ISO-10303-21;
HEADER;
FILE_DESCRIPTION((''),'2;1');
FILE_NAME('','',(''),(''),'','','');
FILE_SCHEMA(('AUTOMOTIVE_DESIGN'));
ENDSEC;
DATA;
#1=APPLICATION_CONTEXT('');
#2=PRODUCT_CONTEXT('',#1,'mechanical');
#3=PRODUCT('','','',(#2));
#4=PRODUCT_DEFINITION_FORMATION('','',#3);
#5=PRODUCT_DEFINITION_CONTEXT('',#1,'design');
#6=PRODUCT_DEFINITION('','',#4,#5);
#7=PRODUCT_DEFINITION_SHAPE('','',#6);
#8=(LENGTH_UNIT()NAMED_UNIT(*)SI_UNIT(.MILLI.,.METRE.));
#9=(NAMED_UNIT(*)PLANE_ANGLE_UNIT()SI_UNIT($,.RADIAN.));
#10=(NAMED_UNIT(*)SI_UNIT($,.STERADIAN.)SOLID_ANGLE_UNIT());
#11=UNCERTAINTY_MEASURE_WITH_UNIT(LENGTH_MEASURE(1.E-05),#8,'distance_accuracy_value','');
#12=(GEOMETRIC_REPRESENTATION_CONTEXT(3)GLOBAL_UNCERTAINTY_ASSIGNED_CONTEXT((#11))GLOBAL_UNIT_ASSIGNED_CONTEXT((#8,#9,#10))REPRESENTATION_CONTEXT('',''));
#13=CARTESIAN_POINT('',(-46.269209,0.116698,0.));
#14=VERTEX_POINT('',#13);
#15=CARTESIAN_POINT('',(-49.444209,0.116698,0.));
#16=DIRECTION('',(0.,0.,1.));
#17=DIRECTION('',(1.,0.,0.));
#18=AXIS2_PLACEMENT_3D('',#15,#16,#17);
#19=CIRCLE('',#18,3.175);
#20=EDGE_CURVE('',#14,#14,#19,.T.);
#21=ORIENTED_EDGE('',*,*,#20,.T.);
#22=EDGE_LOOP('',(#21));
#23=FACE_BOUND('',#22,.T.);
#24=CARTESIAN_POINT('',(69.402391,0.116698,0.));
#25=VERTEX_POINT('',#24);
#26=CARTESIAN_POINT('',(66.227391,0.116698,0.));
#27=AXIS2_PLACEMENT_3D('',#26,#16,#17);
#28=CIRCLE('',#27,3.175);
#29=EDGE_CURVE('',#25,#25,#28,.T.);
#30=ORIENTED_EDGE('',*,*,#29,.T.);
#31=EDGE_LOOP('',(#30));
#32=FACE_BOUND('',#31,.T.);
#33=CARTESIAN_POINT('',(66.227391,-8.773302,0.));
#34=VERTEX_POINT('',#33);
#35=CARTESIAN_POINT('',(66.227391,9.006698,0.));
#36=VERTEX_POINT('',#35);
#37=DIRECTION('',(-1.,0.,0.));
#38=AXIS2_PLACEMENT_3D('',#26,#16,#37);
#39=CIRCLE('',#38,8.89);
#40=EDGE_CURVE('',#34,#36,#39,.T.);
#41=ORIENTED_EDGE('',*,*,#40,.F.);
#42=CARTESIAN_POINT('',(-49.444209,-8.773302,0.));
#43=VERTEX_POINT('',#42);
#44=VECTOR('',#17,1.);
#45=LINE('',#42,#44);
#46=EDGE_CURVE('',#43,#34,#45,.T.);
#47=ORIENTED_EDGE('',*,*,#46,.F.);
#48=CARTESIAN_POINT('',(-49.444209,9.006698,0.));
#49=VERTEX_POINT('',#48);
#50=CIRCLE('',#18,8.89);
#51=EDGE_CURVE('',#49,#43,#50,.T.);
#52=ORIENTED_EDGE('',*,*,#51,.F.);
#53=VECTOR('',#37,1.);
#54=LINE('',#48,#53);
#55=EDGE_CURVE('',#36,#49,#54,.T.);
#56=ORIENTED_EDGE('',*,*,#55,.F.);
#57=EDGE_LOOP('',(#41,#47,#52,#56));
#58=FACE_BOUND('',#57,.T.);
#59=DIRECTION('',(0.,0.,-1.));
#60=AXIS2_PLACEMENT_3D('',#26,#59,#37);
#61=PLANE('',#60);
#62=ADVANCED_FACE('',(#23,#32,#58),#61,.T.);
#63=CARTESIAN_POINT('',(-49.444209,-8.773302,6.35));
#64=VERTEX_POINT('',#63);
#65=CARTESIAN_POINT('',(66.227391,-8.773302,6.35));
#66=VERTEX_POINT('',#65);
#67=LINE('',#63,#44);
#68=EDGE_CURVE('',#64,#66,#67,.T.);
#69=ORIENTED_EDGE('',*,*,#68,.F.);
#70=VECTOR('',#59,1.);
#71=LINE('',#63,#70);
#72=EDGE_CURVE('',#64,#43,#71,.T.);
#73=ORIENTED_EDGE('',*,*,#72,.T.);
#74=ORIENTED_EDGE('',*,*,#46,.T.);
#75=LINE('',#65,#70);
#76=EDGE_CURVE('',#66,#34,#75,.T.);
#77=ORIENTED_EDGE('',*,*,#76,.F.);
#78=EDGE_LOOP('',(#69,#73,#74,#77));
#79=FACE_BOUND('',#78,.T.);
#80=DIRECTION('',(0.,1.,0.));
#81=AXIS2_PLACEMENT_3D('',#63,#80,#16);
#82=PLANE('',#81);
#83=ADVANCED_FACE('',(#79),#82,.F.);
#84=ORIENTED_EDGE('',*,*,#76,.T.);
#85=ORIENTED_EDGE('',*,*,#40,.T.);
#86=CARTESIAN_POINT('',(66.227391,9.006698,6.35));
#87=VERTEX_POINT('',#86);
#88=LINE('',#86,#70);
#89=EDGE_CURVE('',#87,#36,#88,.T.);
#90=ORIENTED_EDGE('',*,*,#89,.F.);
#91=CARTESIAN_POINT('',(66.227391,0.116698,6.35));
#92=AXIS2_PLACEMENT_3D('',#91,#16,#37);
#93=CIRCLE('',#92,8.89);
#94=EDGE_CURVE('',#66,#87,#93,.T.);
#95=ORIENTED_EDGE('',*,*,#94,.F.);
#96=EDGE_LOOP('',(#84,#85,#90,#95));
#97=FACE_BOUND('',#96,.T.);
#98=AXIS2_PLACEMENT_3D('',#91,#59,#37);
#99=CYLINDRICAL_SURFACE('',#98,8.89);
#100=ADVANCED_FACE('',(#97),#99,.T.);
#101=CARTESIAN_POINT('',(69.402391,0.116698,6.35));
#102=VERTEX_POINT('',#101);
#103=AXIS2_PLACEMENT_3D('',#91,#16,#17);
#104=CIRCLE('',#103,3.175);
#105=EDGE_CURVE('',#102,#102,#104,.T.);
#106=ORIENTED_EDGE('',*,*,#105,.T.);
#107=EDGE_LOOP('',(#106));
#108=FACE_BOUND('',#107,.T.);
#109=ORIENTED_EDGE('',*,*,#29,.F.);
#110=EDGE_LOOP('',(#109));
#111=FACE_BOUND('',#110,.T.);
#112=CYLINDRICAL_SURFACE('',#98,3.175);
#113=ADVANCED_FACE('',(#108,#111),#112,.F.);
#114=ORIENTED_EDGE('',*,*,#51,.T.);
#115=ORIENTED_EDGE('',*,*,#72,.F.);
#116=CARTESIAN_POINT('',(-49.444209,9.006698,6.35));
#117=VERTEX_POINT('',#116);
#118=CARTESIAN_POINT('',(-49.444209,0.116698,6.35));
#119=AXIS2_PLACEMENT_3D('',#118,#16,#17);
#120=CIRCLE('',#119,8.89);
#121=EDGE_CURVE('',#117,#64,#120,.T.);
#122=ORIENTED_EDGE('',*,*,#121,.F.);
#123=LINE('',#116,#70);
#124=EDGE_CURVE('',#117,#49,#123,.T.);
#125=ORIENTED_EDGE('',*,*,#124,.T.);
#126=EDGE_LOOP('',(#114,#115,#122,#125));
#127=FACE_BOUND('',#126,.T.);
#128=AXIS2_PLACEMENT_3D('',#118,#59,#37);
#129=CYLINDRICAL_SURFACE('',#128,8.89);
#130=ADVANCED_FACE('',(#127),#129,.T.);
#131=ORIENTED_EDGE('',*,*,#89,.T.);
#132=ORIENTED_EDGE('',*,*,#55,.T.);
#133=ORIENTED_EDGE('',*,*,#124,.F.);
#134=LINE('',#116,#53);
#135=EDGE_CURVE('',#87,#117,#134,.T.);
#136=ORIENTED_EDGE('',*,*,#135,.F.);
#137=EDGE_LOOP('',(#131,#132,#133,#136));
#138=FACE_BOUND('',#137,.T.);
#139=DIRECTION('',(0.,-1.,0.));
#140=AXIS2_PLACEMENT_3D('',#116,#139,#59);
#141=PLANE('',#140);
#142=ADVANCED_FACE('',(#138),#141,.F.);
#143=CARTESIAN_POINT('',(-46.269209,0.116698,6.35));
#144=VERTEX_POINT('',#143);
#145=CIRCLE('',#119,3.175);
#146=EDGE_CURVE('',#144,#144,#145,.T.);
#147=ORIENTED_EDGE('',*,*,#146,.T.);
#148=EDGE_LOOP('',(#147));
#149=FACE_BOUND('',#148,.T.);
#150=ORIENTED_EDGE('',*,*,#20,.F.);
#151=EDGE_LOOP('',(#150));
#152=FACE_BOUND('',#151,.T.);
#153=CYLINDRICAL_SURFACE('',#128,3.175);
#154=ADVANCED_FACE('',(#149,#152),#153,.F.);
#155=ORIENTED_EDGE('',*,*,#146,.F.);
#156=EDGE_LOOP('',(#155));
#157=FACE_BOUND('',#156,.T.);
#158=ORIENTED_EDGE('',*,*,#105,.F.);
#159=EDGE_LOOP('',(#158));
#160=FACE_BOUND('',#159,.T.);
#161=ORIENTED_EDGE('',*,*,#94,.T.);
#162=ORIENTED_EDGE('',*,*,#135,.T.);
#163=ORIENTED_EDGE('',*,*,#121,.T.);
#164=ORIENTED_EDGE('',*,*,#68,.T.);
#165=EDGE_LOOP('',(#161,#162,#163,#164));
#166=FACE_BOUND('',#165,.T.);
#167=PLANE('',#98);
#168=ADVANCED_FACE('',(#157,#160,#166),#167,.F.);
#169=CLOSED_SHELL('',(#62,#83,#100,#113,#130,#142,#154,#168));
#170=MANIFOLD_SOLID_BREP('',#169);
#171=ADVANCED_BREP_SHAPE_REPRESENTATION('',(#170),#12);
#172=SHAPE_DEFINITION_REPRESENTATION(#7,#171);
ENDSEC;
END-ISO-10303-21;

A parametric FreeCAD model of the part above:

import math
import FreeCAD as App
import Part
import Sketcher
Q = App.Units.Quantity

doc = App.newDocument("Part")
body = doc.addObject("PartDesign::Body", "Body")

# Sketch on XY plane
sketch1 = body.newObject("Sketcher::SketchObject", "Sketch")
sketch1.AttachmentSupport = (doc.getObject("XY_Plane"), [""])
sketch1.MapMode = "FlatFace"
sketch1.addGeometry(Part.LineSegment(App.Vector(-49.4, -8.8, 0), App.Vector(66.2, -8.8, 0)), False)
sketch1.addGeometry(Part.ArcOfCircle(Part.Circle(App.Vector(66.2, 0.1, 0), App.Vector(0, 0, 1), 8.9), math.radians(-90), math.radians(90)), False)
sketch1.addGeometry(Part.LineSegment(App.Vector(66.2, 9, 0), App.Vector(-49.4, 9, 0)), False)
sketch1.addGeometry(Part.ArcOfCircle(Part.Circle(App.Vector(-49.4, 0.1, 0), App.Vector(0, 0, 1), 8.9), math.radians(90), math.radians(270)), False)
sketch1.addGeometry(Part.Circle(App.Vector(-49.4, 0.1, 0), App.Vector(0, 0, 1), 3.2), False)
sketch1.addGeometry(Part.Circle(App.Vector(66.2, 0.1, 0), App.Vector(0, 0, 1), 3.2), False)
sketch1.addConstraint(Sketcher.Constraint("Tangent", 0, 2, 1, 1))
sketch1.addConstraint(Sketcher.Constraint("Tangent", 1, 2, 2, 1))
sketch1.addConstraint(Sketcher.Constraint("Tangent", 2, 2, 3, 1))
sketch1.addConstraint(Sketcher.Constraint("Tangent", 3, 2, 0, 1))
sketch1.addConstraint(Sketcher.Constraint("Horizontal", 0))
sketch1.addConstraint(Sketcher.Constraint("Horizontal", 2))
sketch1.addConstraint(Sketcher.Constraint("Coincident", 4, 3, 3, 3))
sketch1.addConstraint(Sketcher.Constraint("Coincident", 5, 3, 1, 3))
sketch1.addConstraint(Sketcher.Constraint("Equal", 4, 5))
sketch1.addConstraint(Sketcher.Constraint("Diameter", 4, Q("0.25 in")))
sketch1.addConstraint(Sketcher.Constraint("Radius", 1, Q("0.35 in")))
sketch1.addConstraint(Sketcher.Constraint("DistanceX", 0, 1, 0, 2, Q("4.554 in")))
sketch1.addConstraint(Sketcher.Constraint("DistanceX", -1, 1, 1, 3, Q("66.227391 mm")))
sketch1.addConstraint(Sketcher.Constraint("DistanceY", -1, 1, 1, 3, Q("0.116698 mm")))
pad1 = body.newObject("PartDesign::Pad", "Pad")
pad1.Profile = sketch1
pad1.Length = Q("0.25 in")

doc.recompute()
